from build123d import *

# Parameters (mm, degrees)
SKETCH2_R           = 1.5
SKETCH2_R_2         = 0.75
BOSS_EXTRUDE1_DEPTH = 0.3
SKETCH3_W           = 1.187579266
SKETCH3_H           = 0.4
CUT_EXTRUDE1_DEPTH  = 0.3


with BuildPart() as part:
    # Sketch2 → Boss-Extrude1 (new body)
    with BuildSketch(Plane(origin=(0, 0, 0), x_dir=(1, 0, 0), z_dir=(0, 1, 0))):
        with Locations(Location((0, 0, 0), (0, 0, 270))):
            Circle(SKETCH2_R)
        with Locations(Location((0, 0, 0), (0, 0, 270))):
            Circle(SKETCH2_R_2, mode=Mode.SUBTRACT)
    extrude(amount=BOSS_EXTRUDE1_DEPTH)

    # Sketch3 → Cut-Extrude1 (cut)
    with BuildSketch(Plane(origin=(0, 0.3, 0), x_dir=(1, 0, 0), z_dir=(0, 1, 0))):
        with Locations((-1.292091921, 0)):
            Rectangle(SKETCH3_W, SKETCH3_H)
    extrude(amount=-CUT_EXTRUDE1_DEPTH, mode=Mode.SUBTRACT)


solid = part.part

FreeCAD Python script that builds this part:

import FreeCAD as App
import Part
import Sketcher

V = App.Vector
Q = App.Units.Quantity


def add_polygon(sketch, points):
    """Adds a closed chain of lines whose ends are joined by coincident constraints."""
    first, n = sketch.GeometryCount, len(points)
    for a, b in zip(points, points[1:] + points[:1]):
        sketch.addGeometry(Part.LineSegment(App.Vector(*a, 0), App.Vector(*b, 0)), False)
    for i in range(n):
        sketch.addConstraint(Sketcher.Constraint("Coincident", first + i, 2, first + (i + 1) % n, 1))

doc = App.newDocument("Part")
body = doc.addObject("PartDesign::Body", "Body")

# Sketch on XZ plane
sketch1 = doc.addObject("Sketcher::SketchObject", "Sketch")
body.addObject(sketch1)
sketch1.AttachmentSupport = (doc.XZ_Plane, [""])
sketch1.MapMode = "FlatFace"
sketch1.addGeometry([
    Part.Circle(V(0, 0, 0), V(0, 0, 1), 1.5),
    Part.Circle(V(0, 0, 0), V(0, 0, 1), 0.8),
], False)
sketch1.addConstraint([
    Sketcher.Constraint("Coincident", 0, 3, -1, 1),
    Sketcher.Constraint("Coincident", 1, 3, -1, 1),
    Sketcher.Constraint("Diameter", 0, Q("3 mm")),
    Sketcher.Constraint("Diameter", 1, Q("1.5 mm")),
])
pad1 = doc.addObject("PartDesign::Pad", "Pad")
body.addObject(pad1)
pad1.Profile = sketch1
pad1.Length = 0.3
pad1.Reversed = True

# Sketch on XZ plane
sketch2 = doc.addObject("Sketcher::SketchObject", "Sketch001")
body.addObject(sketch2)
sketch2.AttachmentSupport = (doc.XZ_Plane, [""])
sketch2.MapMode = "FlatFace"
sketch2.AttachmentOffset = App.Placement(V(0, 0, -0.3), App.Rotation())
add_polygon(sketch2, [(-1.89, -0.2), (-1.89, 0.2), (-0.7, 0.2), (-0.7, -0.2)])  # lines 0-3
sketch2.addConstraint([
    Sketcher.Constraint("Vertical", 0),
    Sketcher.Constraint("Horizontal", 1),
    Sketcher.Constraint("Vertical", 2),
    Sketcher.Constraint("Horizontal", 3),
    Sketcher.Constraint("DistanceY", 0, 1, 0, 2, Q("0.4 mm")),
    Sketcher.Constraint("DistanceY", -1, 1, 0, 2, Q("0.2 mm")),
    Sketcher.Constraint("DistanceX", 1, 1, 1, 2, Q("1.187579 mm")),
    Sketcher.Constraint("DistanceX", 0, 2, -1, 1, Q("1.885882 mm")),
])
pocket1 = doc.addObject("PartDesign::Pocket", "Pocket")
body.addObject(pocket1)
pocket1.Profile = sketch2
pocket1.Length = 0.3
pocket1.Reversed = True

doc.recompute()
